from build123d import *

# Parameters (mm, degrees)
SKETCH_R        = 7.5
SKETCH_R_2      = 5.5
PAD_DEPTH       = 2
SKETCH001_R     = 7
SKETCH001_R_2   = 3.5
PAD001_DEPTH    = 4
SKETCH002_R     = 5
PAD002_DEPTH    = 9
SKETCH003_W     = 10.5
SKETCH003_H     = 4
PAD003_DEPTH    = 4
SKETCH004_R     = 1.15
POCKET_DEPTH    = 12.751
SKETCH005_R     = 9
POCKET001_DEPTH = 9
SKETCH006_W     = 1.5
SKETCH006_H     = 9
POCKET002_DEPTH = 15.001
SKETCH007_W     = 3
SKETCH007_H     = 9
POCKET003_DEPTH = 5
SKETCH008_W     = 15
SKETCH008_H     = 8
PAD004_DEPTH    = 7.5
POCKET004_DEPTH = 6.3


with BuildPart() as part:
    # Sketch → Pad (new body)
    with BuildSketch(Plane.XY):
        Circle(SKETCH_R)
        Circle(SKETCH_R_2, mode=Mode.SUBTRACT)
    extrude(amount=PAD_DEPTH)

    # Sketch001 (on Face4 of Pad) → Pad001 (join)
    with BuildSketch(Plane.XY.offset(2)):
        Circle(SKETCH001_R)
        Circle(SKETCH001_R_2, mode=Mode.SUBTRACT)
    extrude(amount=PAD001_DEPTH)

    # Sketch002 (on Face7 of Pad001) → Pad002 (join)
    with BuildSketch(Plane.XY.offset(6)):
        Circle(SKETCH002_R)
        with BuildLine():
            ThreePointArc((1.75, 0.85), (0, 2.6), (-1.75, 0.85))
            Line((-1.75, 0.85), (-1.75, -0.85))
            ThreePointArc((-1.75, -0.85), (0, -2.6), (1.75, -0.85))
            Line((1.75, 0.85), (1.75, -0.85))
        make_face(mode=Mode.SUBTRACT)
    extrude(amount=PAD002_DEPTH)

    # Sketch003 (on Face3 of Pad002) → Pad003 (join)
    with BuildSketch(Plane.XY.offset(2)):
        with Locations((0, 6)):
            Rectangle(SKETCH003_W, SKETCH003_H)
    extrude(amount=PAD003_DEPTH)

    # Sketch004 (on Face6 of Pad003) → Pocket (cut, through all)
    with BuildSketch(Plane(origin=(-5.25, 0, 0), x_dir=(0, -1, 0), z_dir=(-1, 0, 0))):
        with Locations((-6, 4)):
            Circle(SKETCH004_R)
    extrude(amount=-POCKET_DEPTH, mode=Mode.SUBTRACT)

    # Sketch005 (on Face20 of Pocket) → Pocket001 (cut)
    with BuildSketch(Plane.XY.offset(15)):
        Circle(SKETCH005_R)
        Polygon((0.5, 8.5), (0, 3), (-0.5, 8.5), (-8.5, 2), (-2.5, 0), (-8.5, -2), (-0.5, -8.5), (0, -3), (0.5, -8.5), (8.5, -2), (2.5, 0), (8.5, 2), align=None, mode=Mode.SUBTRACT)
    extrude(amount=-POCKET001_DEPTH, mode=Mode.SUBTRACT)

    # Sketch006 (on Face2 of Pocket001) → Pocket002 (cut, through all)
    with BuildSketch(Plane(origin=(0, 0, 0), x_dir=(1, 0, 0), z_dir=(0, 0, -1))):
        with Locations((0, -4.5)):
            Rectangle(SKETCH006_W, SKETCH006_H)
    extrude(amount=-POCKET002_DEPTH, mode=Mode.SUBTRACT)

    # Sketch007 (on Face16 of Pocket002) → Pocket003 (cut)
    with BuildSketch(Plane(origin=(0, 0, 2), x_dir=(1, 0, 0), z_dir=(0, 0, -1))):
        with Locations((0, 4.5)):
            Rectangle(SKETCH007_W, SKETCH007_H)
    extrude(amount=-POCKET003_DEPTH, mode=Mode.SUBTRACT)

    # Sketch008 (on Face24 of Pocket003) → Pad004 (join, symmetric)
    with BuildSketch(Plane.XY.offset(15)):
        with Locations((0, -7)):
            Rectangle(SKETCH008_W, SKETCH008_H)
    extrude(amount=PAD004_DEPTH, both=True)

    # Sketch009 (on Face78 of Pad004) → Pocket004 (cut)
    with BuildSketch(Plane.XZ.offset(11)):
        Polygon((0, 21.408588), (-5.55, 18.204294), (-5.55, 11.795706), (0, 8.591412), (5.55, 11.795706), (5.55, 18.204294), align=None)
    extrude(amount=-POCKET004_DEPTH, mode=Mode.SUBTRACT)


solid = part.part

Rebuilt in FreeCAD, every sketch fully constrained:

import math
import FreeCAD as App
import Part
import Sketcher

V = App.Vector
Q = App.Units.Quantity

doc = App.newDocument("Part")
params = doc.addObject("Spreadsheet::Sheet", "Params")
for row, (alias, value) in enumerate([
    ("sketch1_diameter", "15 mm"),
    ("sketch1_diameter2", "11 mm"),
    ("pad1_length", "2 mm"),
    ("sketch2_diameter", "14 mm"),
    ("sketch2_diameter2", "7 mm"),
    ("pad2_length", "4 mm"),
    ("sketch3_diameter", "10 mm"),
    ("sketch3_radius", "1.75 mm"),
    ("sketch3_height", "1.7 mm"),
    ("pad3_length", "9 mm"),
    ("sketch4_height", "4 mm"),
    ("sketch4_width", "10.5 mm"),
    ("pad4_length", "4 mm"),
    ("sketch5_diameter", "2.3 mm"),
    ("sketch6_diameter", "18 mm"),
    ("pocket2_length", "9 mm"),
    ("sketch7_height", "9 mm"),
    ("sketch7_width", "1.5 mm"),
    ("sketch8_width", "3 mm"),
    ("sketch8_height", "9 mm"),
    ("pocket4_length", "5 mm"),
    ("sketch9_width", "15 mm"),
    ("sketch9_height", "8 mm"),
    ("pad5_length", "15 mm"),
    ("pocket5_length", "6.3 mm"),
], start=1):
    params.set(f"A{row}", alias)
    params.set(f"B{row}", "=" + value)
    params.setAlias(f"B{row}", alias)

body = doc.addObject("PartDesign::Body", "Body")

sketch1 = doc.addObject("Sketcher::SketchObject", "Sketch")
body.addObject(sketch1)
sketch1.AttachmentSupport = (doc.XY_Plane, [""])
sketch1.MapMode = "FlatFace"
sketch1.addGeometry([
    Part.Circle(V(0, 0, 0), V(0, 0, 1), 7.5),
    Part.Circle(V(0, 0, 0), V(0, 0, 1), 5.5),
], False)
sketch1.addConstraint([
    Sketcher.Constraint("Coincident", 0, 3, -1, 1),
    Sketcher.Constraint("Coincident", 1, 3, -1, 1),
    Sketcher.Constraint("Diameter", 0, 15.0),
    Sketcher.Constraint("Diameter", 1, 11.0),
])
sketch1.setExpression("Constraints[2]", "Params.sketch1_diameter")
sketch1.setExpression("Constraints[3]", "Params.sketch1_diameter2")
pad1 = doc.addObject("PartDesign::Pad", "Pad")
body.addObject(pad1)
pad1.Profile = sketch1
pad1.setExpression("Length", "Params.pad1_length")

sketch2 = doc.addObject("Sketcher::SketchObject", "Sketch001")
body.addObject(sketch2)
sketch2.AttachmentSupport = (doc.XY_Plane, [""])
sketch2.MapMode = "FlatFace"
sketch2.AttachmentOffset = App.Placement(V(0, 0, 2), App.Rotation())
sketch2.addGeometry([
    Part.Circle(V(0, 0, 0), V(0, 0, 1), 7),
    Part.Circle(V(0, 0, 0), V(0, 0, 1), 3.5),
], False)
sketch2.addConstraint([
    Sketcher.Constraint("Coincident", 0, 3, -1, 1),
    Sketcher.Constraint("Coincident", 1, 3, -1, 1),
    Sketcher.Constraint("Diameter", 0, 14.0),
    Sketcher.Constraint("Diameter", 1, 7.0),
])
sketch2.setExpression("Constraints[2]", "Params.sketch2_diameter")
sketch2.setExpression("Constraints[3]", "Params.sketch2_diameter2")
pad2 = doc.addObject("PartDesign::Pad", "Pad001")
body.addObject(pad2)
pad2.Profile = sketch2
pad2.setExpression("Length", "Params.pad2_length")

sketch3 = doc.addObject("Sketcher::SketchObject", "Sketch002")
body.addObject(sketch3)
sketch3.AttachmentSupport = (doc.XY_Plane, [""])
sketch3.MapMode = "FlatFace"
sketch3.AttachmentOffset = App.Placement(V(0, 0, 6), App.Rotation())
sketch3.addGeometry([
    Part.Circle(V(0, 0, 0), V(0, 0, 1), 5),
    Part.ArcOfCircle(Part.Circle(V(0, 0.85, 0), V(0, 0, 1), 1.75), math.radians(0), math.radians(180)),
    Part.LineSegment(V(1.75, 0.85, 0), V(1.75, -0.85, 0)),
    Part.ArcOfCircle(Part.Circle(V(0, -0.85, 0), V(0, 0, 1), 1.75), math.radians(180), math.radians(360)),
    Part.LineSegment(V(-1.75, -0.85, 0), V(-1.75, 0.85, 0)),
], False)
sketch3.addConstraint([
    Sketcher.Constraint("Tangent", 1, 1, 2, 1),
    Sketcher.Constraint("Tangent", 2, 2, 3, 2),
    Sketcher.Constraint("Tangent", 3, 1, 4, 1),
    Sketcher.Constraint("Tangent", 4, 2, 1, 2),
    Sketcher.Constraint("Vertical", 2),
    Sketcher.Constraint("Vertical", 4),
    Sketcher.Constraint("Coincident", 0, 3, -1, 1),
    Sketcher.Constraint("Symmetric", 1, 3, 3, 3, -1, 1),
    Sketcher.Constraint("Diameter", 0, 10.0),
    Sketcher.Constraint("Radius", 1, 1.75),
    Sketcher.Constraint("DistanceY", 2, 2, 2, 1, 1.7),
])
sketch3.setExpression("Constraints[8]", "Params.sketch3_diameter")
sketch3.setExpression("Constraints[9]", "Params.sketch3_radius")
sketch3.setExpression("Constraints[10]", "Params.sketch3_height")
pad3 = doc.addObject("PartDesign::Pad", "Pad002")
body.addObject(pad3)
pad3.Profile = sketch3
pad3.setExpression("Length", "Params.pad3_length")

sketch4 = doc.addObject("Sketcher::SketchObject", "Sketch003")
body.addObject(sketch4)
sketch4.AttachmentSupport = (doc.XY_Plane, [""])
sketch4.MapMode = "FlatFace"
sketch4.AttachmentOffset = App.Placement(V(0, 0, 2), App.Rotation())
sketch4.addGeometry([
    Part.LineSegment(V(-5.25, 8, 0), V(-5.25, 4, 0)),
    Part.LineSegment(V(-5.25, 4, 0), V(5.25, 4, 0)),
    Part.LineSegment(V(5.25, 4, 0), V(5.25, 8, 0)),
    Part.LineSegment(V(5.25, 8, 0), V(-5.25, 8, 0)),
], False)
sketch4.addConstraint([
    Sketcher.Constraint("Coincident", 0, 2, 1, 1),
    Sketcher.Constraint("Coincident", 1, 2, 2, 1),
    Sketcher.Constraint("Coincident", 2, 2, 3, 1),
    Sketcher.Constraint("Coincident", 3, 2, 0, 1),
    Sketcher.Constraint("Vertical", 0),
    Sketcher.Constraint("Horizontal", 1),
    Sketcher.Constraint("Vertical", 2),
    Sketcher.Constraint("Horizontal", 3),
    Sketcher.Constraint("DistanceY", 0, 2, 0, 1, 4.0),
    Sketcher.Constraint("DistanceX", 1, 1, 1, 2, 10.5),
    Sketcher.Constraint("DistanceY", -1, 1, 0, 2, 4.0),
    Sketcher.Constraint("DistanceX", 0, 2, -1, 1, 5.25),
])
sketch4.setExpression("Constraints[8]", "Params.sketch4_height")
sketch4.setExpression("Constraints[9]", "Params.sketch4_width")
pad4 = doc.addObject("PartDesign::Pad", "Pad003")
body.addObject(pad4)
pad4.Profile = sketch4
pad4.setExpression("Length", "Params.pad4_length")

sketch5 = doc.addObject("Sketcher::SketchObject", "Sketch004")
body.addObject(sketch5)
sketch5.AttachmentSupport = (doc.YZ_Plane, [""])
sketch5.MapMode = "FlatFace"
sketch5.AttachmentOffset = App.Placement(V(0, 0, -5.25), App.Rotation())
sketch5.addGeometry(Part.Circle(V(6, 4, 0), V(0, 0, 1), 1.15), False)
sketch5.addConstraint([
    Sketcher.Constraint("Diameter", 0, 2.3),
    Sketcher.Constraint("DistanceX", -1, 1, 0, 3, 6.0),
    Sketcher.Constraint("DistanceY", -1, 1, 0, 3, 4.0),
])
sketch5.setExpression("Constraints[0]", "Params.sketch5_diameter")
pocket1 = doc.addObject("PartDesign::Pocket", "Pocket")
body.addObject(pocket1)
pocket1.Profile = sketch5
pocket1.Type = "ThroughAll"
pocket1.Reversed = True

sketch6 = doc.addObject("Sketcher::SketchObject", "Sketch005")
body.addObject(sketch6)
sketch6.AttachmentSupport = (doc.XY_Plane, [""])
sketch6.MapMode = "FlatFace"
sketch6.AttachmentOffset = App.Placement(V(0, 0, 15), App.Rotation())
sketch6.addGeometry([
    Part.Circle(V(0, 0, 0), V(0, 0, 1), 9),
    Part.LineSegment(V(0, 3, 0), V(0.5, 8.5, 0)),
    Part.LineSegment(V(0.5, 8.5, 0), V(8.5, 2, 0)),
    Part.LineSegment(V(8.5, 2, 0), V(2.5, 0, 0)),
    Part.LineSegment(V(2.5, 0, 0), V(8.5, -2, 0)),
    Part.LineSegment(V(8.5, -2, 0), V(0.5, -8.5, 0)),
    Part.LineSegment(V(0.5, -8.5, 0), V(0, -3, 0)),
    Part.LineSegment(V(0, -3, 0), V(-0.5, -8.5, 0)),
    Part.LineSegment(V(-0.5, -8.5, 0), V(-8.5, -2, 0)),
    Part.LineSegment(V(-8.5, -2, 0), V(-2.5, 0, 0)),
    Part.LineSegment(V(-2.5, 0, 0), V(-8.5, 2, 0)),
    Part.LineSegment(V(-8.5, 2, 0), V(-0.5, 8.5, 0)),
    Part.LineSegment(V(-0.5, 8.5, 0), V(0, 3, 0)),
], False)
sketch6.addConstraint([
    Sketcher.Constraint("Coincident", 1, 2, 2, 1),
    Sketcher.Constraint("Coincident", 2, 2, 3, 1),
    Sketcher.Constraint("Coincident", 3, 2, 4, 1),
    Sketcher.Constraint("Coincident", 4, 2, 5, 1),
    Sketcher.Constraint("Coincident", 5, 2, 6, 1),
    Sketcher.Constraint("Coincident", 6, 2, 7, 1),
    Sketcher.Constraint("Coincident", 7, 2, 8, 1),
    Sketcher.Constraint("Coincident", 8, 2, 9, 1),
    Sketcher.Constraint("Coincident", 9, 2, 10, 1),
    Sketcher.Constraint("Coincident", 10, 2, 11, 1),
    Sketcher.Constraint("Coincident", 11, 2, 12, 1),
    Sketcher.Constraint("Coincident", 12, 2, 1, 1),
    Sketcher.Constraint("Coincident", 0, 3, -1, 1),
    Sketcher.Constraint("Symmetric", 1, 2, 7, 2, -1, 1),
    Sketcher.Constraint("Symmetric", 2, 2, 8, 2, -1, 1),
    Sketcher.Constraint("Symmetric", 3, 2, 9, 2, -1, 1),
    Sketcher.Constraint("Symmetric", 4, 2, 10, 2, -1, 1),
    Sketcher.Constraint("Symmetric", 5, 2, 11, 2, -1, 1),
    Sketcher.Constraint("Symmetric", 6, 2, 12, 2, -1, 1),
    Sketcher.Constraint("Symmetric", 5, 2, 7, 2, -2),
    Sketcher.Constraint("Symmetric", 4, 2, 8, 2, -2),
    Sketcher.Constraint("PointOnObject", 3, 2, -1),
    Sketcher.Constraint("PointOnObject", 6, 2, -2),
    Sketcher.Constraint("Diameter", 0, 18.0),
    Sketcher.Constraint("DistanceY", -1, 1, 2, 2, 2.0),
    Sketcher.Constraint("DistanceY", 6, 2, -1, 1, 3.0),
    Sketcher.Constraint("DistanceX", 1, 2, 2, 2, 8.0),
    Sketcher.Constraint("DistanceX", 3, 2, 2, 2, 6.0),
    Sketcher.Constraint("DistanceY", 5, 2, 1, 2, 17.0),
    Sketcher.Constraint("DistanceX", 7, 2, 5, 2, 1.0),
])
sketch6.setExpression("Constraints[23]", "Params.sketch6_diameter")
pocket2 = doc.addObject("PartDesign::Pocket", "Pocket001")
body.addObject(pocket2)
pocket2.Profile = sketch6
pocket2.setExpression("Length", "Params.pocket2_length")

sketch7 = doc.addObject("Sketcher::SketchObject", "Sketch006")
body.addObject(sketch7)
sketch7.AttachmentSupport = (doc.XY_Plane, [""])
sketch7.MapMode = "FlatFace"
sketch7.addGeometry([
    Part.LineSegment(V(-0.75, 0, 0), V(-0.75, 9, 0)),
    Part.LineSegment(V(-0.75, 9, 0), V(0.75, 9, 0)),
    Part.LineSegment(V(0.75, 9, 0), V(0.75, 0, 0)),
    Part.LineSegment(V(0.75, 0, 0), V(-0.75, 0, 0)),
], False)
sketch7.addConstraint([
    Sketcher.Constraint("Coincident", 0, 2, 1, 1),
    Sketcher.Constraint("Coincident", 1, 2, 2, 1),
    Sketcher.Constraint("Coincident", 2, 2, 3, 1),
    Sketcher.Constraint("Coincident", 3, 2, 0, 1),
    Sketcher.Constraint("Vertical", 0),
    Sketcher.Constraint("Horizontal", 1),
    Sketcher.Constraint("Vertical", 2),
    Sketcher.Constraint("Horizontal", 3),
    Sketcher.Constraint("Symmetric", 2, 2, 3, 2, -1, 1),
    Sketcher.Constraint("DistanceY", 0, 1, 0, 2, 9.0),
    Sketcher.Constraint("DistanceX", 1, 1, 1, 2, 1.5),
])
sketch7.setExpression("Constraints[9]", "Params.sketch7_height")
sketch7.setExpression("Constraints[10]", "Params.sketch7_width")
pocket3 = doc.addObject("PartDesign::Pocket", "Pocket002")
body.addObject(pocket3)
pocket3.Profile = sketch7
pocket3.Type = "ThroughAll"
pocket3.Reversed = True

sketch8 = doc.addObject("Sketcher::SketchObject", "Sketch007")
body.addObject(sketch8)
sketch8.AttachmentSupport = (doc.XY_Plane, [""])
sketch8.MapMode = "FlatFace"
sketch8.AttachmentOffset = App.Placement(V(0, 0, 2), App.Rotation())
sketch8.addGeometry([
    Part.LineSegment(V(-1.5, -9, 0), V(-1.5, 0, 0)),
    Part.LineSegment(V(-1.5, 0, 0), V(1.5, 0, 0)),
    Part.LineSegment(V(1.5, 0, 0), V(1.5, -9, 0)),
    Part.LineSegment(V(1.5, -9, 0), V(-1.5, -9, 0)),
], False)
sketch8.addConstraint([
    Sketcher.Constraint("Coincident", 0, 2, 1, 1),
    Sketcher.Constraint("Coincident", 1, 2, 2, 1),
    Sketcher.Constraint("Coincident", 2, 2, 3, 1),
    Sketcher.Constraint("Coincident", 3, 2, 0, 1),
    Sketcher.Constraint("Vertical", 0),
    Sketcher.Constraint("Horizontal", 1),
    Sketcher.Constraint("Vertical", 2),
    Sketcher.Constraint("Horizontal", 3),
    Sketcher.Constraint("Symmetric", 0, 2, 1, 2, -1, 1),
    Sketcher.Constraint("DistanceX", 1, 1, 1, 2, 3.0),
    Sketcher.Constraint("DistanceY", 0, 1, 0, 2, 9.0),
])
sketch8.setExpression("Constraints[9]", "Params.sketch8_width")
sketch8.setExpression("Constraints[10]", "Params.sketch8_height")
pocket4 = doc.addObject("PartDesign::Pocket", "Pocket003")
body.addObject(pocket4)
pocket4.Profile = sketch8
pocket4.setExpression("Length", "Params.pocket4_length")
pocket4.Reversed = True

sketch9 = doc.addObject("Sketcher::SketchObject", "Sketch008")
body.addObject(sketch9)
sketch9.AttachmentSupport = (doc.XY_Plane, [""])
sketch9.MapMode = "FlatFace"
sketch9.AttachmentOffset = App.Placement(V(0, 0, 15), App.Rotation())
sketch9.addGeometry([
    Part.LineSegment(V(-7.5, -3, 0), V(-7.5, -11, 0)),
    Part.LineSegment(V(-7.5, -11, 0), V(7.5, -11, 0)),
    Part.LineSegment(V(7.5, -11, 0), V(7.5, -3, 0)),
    Part.LineSegment(V(7.5, -3, 0), V(-7.5, -3, 0)),
], False)
sketch9.addConstraint([
    Sketcher.Constraint("Coincident", 0, 2, 1, 1),
    Sketcher.Constraint("Coincident", 1, 2, 2, 1),
    Sketcher.Constraint("Coincident", 2, 2, 3, 1),
    Sketcher.Constraint("Coincident", 3, 2, 0, 1),
    Sketcher.Constraint("Vertical", 0),
    Sketcher.Constraint("Horizontal", 1),
    Sketcher.Constraint("Vertical", 2),
    Sketcher.Constraint("Horizontal", 3),
    Sketcher.Constraint("DistanceX", 1, 1, 1, 2, 15.0),
    Sketcher.Constraint("DistanceY", 0, 2, 0, 1, 8.0),
    Sketcher.Constraint("DistanceY", 0, 2, -1, 1, 11.0),
    Sketcher.Constraint("DistanceX", 0, 2, -1, 1, 7.5),
])
sketch9.setExpression("Constraints[8]", "Params.sketch9_width")
sketch9.setExpression("Constraints[9]", "Params.sketch9_height")
pad5 = doc.addObject("PartDesign::Pad", "Pad004")
body.addObject(pad5)
pad5.Profile = sketch9
pad5.setExpression("Length", "Params.pad5_length")
pad5.Midplane = True

sketch10 = doc.addObject("Sketcher::SketchObject", "Sketch009")
body.addObject(sketch10)
sketch10.AttachmentSupport = (doc.XZ_Plane, [""])
sketch10.MapMode = "FlatFace"
sketch10.AttachmentOffset = App.Placement(V(0, 0, 11), App.Rotation())
sketch10.addGeometry([
    Part.LineSegment(V(0, 21.408588, 0), V(-5.55, 18.204294, 0)),
    Part.LineSegment(V(-5.55, 18.204294, 0), V(-5.55, 11.795706, 0)),
    Part.LineSegment(V(-5.55, 11.795706, 0), V(0, 8.591412, 0)),
    Part.LineSegment(V(0, 8.591412, 0), V(5.55, 11.795706, 0)),
    Part.LineSegment(V(5.55, 11.795706, 0), V(5.55, 18.204294, 0)),
    Part.LineSegment(V(5.55, 18.204294, 0), V(0, 21.408588, 0)),
], False)
sketch10.addConstraint([
    Sketcher.Constraint("Coincident", 0, 2, 1, 1),
    Sketcher.Constraint("Coincident", 1, 2, 2, 1),
    Sketcher.Constraint("Coincident", 2, 2, 3, 1),
    Sketcher.Constraint("Coincident", 3, 2, 4, 1),
    Sketcher.Constraint("Coincident", 4, 2, 5, 1),
    Sketcher.Constraint("Coincident", 5, 2, 0, 1),
    Sketcher.Constraint("Vertical", 1),
    Sketcher.Constraint("Vertical", 4),
    Sketcher.Constraint("Symmetric", 1, 2, 3, 2, -2),
    Sketcher.Constraint("PointOnObject", 2, 2, -2),
    Sketcher.Constraint("PointOnObject", 5, 2, -2),
    Sketcher.Constraint("Parallel", 0, 3),
    Sketcher.Constraint("Parallel", 2, 5),
    Sketcher.Constraint("Angle", 0, Q("-150 deg")),
    Sketcher.Constraint("DistanceX", 1, 2, 3, 2, 11.1),
    Sketcher.Constraint("DistanceY", 1, 2, 1, 1, 6.408588),
    Sketcher.Constraint("DistanceY", -1, 1, 5, 2, 21.408588),
])
pocket5 = doc.addObject("PartDesign::Pocket", "Pocket004")
body.addObject(pocket5)
pocket5.Profile = sketch10
pocket5.setExpression("Length", "Params.pocket5_length")

doc.recompute()
